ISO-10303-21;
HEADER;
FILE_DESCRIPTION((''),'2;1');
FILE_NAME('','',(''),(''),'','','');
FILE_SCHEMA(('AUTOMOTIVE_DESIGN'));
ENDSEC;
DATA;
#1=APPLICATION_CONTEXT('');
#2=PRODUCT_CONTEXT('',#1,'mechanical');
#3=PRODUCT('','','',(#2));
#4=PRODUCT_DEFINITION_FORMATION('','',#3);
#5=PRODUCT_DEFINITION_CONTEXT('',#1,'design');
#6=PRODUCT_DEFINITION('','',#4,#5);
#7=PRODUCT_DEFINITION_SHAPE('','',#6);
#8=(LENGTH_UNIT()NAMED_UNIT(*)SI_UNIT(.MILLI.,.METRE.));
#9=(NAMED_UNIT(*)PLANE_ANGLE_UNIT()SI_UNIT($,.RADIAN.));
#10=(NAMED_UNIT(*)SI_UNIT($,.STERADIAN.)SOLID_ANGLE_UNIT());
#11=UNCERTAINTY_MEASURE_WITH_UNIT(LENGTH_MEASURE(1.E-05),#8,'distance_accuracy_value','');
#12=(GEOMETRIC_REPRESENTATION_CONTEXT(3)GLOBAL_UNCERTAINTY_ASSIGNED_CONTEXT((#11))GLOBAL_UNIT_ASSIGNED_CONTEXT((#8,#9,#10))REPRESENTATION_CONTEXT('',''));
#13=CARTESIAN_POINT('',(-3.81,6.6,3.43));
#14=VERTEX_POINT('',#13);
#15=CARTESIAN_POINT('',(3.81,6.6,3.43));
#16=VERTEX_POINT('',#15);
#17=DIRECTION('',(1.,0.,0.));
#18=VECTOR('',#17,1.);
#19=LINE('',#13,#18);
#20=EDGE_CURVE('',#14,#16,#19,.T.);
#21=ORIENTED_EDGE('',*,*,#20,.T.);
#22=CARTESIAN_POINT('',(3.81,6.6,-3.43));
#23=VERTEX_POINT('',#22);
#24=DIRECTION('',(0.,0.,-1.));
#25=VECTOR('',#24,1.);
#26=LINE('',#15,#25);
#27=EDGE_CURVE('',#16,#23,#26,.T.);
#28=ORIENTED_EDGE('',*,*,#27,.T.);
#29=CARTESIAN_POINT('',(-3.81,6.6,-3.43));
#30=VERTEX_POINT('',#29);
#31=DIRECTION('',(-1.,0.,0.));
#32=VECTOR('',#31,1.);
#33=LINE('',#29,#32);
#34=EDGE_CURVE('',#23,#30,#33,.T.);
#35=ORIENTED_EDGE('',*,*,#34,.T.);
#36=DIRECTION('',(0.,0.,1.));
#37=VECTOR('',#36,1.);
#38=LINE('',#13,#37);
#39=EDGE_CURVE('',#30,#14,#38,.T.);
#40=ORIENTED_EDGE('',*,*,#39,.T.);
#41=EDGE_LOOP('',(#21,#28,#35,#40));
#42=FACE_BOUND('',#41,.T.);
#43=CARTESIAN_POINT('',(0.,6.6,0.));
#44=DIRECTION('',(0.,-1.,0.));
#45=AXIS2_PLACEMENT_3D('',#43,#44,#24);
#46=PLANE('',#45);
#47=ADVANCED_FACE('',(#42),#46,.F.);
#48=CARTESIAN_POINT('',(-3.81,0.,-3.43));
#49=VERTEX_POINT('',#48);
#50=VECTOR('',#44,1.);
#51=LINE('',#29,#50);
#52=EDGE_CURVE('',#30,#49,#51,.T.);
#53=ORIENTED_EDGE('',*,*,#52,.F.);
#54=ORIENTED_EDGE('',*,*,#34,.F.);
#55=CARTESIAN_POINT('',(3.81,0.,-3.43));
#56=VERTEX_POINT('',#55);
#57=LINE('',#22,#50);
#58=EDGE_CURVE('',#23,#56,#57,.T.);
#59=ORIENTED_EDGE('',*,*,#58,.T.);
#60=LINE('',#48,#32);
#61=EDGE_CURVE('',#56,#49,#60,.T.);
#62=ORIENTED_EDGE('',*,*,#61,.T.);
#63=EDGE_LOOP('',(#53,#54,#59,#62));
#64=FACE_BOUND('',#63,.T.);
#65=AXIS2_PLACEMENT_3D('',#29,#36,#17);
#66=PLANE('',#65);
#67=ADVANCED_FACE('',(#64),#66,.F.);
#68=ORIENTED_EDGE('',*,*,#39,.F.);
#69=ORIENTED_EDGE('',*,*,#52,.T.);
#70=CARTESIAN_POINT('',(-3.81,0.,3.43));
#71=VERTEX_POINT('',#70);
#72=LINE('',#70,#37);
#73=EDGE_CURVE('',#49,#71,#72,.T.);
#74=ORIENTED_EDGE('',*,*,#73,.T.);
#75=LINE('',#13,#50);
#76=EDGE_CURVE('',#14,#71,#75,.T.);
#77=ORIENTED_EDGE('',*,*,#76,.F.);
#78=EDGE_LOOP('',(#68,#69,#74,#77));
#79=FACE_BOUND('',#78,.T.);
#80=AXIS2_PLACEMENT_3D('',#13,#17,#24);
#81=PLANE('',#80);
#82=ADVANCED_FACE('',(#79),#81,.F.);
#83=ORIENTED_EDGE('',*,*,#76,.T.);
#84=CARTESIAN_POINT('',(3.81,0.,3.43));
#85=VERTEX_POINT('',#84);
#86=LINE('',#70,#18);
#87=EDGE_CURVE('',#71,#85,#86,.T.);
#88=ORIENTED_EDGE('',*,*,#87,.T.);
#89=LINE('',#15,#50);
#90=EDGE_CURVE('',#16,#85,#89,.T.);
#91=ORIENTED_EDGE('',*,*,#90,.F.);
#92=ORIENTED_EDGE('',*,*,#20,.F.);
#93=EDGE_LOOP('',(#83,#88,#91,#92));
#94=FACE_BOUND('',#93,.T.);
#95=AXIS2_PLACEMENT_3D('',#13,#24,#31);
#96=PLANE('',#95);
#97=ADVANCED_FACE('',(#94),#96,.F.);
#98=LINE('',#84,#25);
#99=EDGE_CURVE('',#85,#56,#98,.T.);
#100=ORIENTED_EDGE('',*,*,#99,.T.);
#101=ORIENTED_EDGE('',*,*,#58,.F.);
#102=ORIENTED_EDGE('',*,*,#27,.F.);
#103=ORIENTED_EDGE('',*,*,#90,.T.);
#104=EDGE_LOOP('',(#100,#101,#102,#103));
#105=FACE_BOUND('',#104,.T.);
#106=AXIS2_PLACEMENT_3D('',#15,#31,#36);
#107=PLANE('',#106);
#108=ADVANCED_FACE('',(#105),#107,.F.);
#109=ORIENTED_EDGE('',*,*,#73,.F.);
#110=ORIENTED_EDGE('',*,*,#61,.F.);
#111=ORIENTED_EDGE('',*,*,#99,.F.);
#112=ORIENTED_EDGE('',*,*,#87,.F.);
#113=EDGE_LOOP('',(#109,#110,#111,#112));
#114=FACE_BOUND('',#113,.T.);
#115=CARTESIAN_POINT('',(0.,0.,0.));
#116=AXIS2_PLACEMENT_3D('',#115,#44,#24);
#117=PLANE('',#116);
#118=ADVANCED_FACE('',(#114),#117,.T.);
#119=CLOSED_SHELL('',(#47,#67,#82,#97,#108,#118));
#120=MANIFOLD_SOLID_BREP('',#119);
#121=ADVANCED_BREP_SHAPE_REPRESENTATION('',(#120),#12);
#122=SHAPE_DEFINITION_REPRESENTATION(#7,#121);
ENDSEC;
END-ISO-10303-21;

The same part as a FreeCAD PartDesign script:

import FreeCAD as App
import Part
import Sketcher
from FreeCAD import Vector
Q = App.Units.Quantity


def add_polygon(sketch, points):
    """Adds a closed chain of lines whose ends are joined by coincident constraints."""
    first, n = sketch.GeometryCount, len(points)
    for a, b in zip(points, points[1:] + points[:1]):
        sketch.addGeometry(Part.LineSegment(App.Vector(*a, 0), App.Vector(*b, 0)), False)
    for i in range(n):
        sketch.addConstraint(Sketcher.Constraint("Coincident", first + i, 2, first + (i + 1) % n, 1))

doc = App.newDocument("Part")
body = doc.addObject("PartDesign::Body", "Body")

# Sketch on XZ plane
sketch1 = doc.addObject("Sketcher::SketchObject", "Sketch")
body.addObject(sketch1)
sketch1.AttachmentSupport = (doc.XZ_Plane, [""])
sketch1.MapMode = "FlatFace"
add_polygon(sketch1, [(-4, -3), (-4, 3), (4, 3), (4, -3)])  # lines 0-3
sketch1.addConstraint([
    Sketcher.Constraint("Vertical", 0),
    Sketcher.Constraint("Horizontal", 1),
    Sketcher.Constraint("Vertical", 2),
    Sketcher.Constraint("Horizontal", 3),
    Sketcher.Constraint("Symmetric", 0, 2, 2, 2, -1, 1),
    Sketcher.Constraint("DistanceX", 1, 1, 1, 2, Q("7.62 mm")),
    Sketcher.Constraint("DistanceY", 0, 1, 0, 2, Q("6.86 mm")),
])
pad1 = doc.addObject("PartDesign::Pad", "Pad")
body.addObject(pad1)
pad1.Profile = sketch1
pad1.Length = 6.6
pad1.Reversed = True

doc.recompute()
